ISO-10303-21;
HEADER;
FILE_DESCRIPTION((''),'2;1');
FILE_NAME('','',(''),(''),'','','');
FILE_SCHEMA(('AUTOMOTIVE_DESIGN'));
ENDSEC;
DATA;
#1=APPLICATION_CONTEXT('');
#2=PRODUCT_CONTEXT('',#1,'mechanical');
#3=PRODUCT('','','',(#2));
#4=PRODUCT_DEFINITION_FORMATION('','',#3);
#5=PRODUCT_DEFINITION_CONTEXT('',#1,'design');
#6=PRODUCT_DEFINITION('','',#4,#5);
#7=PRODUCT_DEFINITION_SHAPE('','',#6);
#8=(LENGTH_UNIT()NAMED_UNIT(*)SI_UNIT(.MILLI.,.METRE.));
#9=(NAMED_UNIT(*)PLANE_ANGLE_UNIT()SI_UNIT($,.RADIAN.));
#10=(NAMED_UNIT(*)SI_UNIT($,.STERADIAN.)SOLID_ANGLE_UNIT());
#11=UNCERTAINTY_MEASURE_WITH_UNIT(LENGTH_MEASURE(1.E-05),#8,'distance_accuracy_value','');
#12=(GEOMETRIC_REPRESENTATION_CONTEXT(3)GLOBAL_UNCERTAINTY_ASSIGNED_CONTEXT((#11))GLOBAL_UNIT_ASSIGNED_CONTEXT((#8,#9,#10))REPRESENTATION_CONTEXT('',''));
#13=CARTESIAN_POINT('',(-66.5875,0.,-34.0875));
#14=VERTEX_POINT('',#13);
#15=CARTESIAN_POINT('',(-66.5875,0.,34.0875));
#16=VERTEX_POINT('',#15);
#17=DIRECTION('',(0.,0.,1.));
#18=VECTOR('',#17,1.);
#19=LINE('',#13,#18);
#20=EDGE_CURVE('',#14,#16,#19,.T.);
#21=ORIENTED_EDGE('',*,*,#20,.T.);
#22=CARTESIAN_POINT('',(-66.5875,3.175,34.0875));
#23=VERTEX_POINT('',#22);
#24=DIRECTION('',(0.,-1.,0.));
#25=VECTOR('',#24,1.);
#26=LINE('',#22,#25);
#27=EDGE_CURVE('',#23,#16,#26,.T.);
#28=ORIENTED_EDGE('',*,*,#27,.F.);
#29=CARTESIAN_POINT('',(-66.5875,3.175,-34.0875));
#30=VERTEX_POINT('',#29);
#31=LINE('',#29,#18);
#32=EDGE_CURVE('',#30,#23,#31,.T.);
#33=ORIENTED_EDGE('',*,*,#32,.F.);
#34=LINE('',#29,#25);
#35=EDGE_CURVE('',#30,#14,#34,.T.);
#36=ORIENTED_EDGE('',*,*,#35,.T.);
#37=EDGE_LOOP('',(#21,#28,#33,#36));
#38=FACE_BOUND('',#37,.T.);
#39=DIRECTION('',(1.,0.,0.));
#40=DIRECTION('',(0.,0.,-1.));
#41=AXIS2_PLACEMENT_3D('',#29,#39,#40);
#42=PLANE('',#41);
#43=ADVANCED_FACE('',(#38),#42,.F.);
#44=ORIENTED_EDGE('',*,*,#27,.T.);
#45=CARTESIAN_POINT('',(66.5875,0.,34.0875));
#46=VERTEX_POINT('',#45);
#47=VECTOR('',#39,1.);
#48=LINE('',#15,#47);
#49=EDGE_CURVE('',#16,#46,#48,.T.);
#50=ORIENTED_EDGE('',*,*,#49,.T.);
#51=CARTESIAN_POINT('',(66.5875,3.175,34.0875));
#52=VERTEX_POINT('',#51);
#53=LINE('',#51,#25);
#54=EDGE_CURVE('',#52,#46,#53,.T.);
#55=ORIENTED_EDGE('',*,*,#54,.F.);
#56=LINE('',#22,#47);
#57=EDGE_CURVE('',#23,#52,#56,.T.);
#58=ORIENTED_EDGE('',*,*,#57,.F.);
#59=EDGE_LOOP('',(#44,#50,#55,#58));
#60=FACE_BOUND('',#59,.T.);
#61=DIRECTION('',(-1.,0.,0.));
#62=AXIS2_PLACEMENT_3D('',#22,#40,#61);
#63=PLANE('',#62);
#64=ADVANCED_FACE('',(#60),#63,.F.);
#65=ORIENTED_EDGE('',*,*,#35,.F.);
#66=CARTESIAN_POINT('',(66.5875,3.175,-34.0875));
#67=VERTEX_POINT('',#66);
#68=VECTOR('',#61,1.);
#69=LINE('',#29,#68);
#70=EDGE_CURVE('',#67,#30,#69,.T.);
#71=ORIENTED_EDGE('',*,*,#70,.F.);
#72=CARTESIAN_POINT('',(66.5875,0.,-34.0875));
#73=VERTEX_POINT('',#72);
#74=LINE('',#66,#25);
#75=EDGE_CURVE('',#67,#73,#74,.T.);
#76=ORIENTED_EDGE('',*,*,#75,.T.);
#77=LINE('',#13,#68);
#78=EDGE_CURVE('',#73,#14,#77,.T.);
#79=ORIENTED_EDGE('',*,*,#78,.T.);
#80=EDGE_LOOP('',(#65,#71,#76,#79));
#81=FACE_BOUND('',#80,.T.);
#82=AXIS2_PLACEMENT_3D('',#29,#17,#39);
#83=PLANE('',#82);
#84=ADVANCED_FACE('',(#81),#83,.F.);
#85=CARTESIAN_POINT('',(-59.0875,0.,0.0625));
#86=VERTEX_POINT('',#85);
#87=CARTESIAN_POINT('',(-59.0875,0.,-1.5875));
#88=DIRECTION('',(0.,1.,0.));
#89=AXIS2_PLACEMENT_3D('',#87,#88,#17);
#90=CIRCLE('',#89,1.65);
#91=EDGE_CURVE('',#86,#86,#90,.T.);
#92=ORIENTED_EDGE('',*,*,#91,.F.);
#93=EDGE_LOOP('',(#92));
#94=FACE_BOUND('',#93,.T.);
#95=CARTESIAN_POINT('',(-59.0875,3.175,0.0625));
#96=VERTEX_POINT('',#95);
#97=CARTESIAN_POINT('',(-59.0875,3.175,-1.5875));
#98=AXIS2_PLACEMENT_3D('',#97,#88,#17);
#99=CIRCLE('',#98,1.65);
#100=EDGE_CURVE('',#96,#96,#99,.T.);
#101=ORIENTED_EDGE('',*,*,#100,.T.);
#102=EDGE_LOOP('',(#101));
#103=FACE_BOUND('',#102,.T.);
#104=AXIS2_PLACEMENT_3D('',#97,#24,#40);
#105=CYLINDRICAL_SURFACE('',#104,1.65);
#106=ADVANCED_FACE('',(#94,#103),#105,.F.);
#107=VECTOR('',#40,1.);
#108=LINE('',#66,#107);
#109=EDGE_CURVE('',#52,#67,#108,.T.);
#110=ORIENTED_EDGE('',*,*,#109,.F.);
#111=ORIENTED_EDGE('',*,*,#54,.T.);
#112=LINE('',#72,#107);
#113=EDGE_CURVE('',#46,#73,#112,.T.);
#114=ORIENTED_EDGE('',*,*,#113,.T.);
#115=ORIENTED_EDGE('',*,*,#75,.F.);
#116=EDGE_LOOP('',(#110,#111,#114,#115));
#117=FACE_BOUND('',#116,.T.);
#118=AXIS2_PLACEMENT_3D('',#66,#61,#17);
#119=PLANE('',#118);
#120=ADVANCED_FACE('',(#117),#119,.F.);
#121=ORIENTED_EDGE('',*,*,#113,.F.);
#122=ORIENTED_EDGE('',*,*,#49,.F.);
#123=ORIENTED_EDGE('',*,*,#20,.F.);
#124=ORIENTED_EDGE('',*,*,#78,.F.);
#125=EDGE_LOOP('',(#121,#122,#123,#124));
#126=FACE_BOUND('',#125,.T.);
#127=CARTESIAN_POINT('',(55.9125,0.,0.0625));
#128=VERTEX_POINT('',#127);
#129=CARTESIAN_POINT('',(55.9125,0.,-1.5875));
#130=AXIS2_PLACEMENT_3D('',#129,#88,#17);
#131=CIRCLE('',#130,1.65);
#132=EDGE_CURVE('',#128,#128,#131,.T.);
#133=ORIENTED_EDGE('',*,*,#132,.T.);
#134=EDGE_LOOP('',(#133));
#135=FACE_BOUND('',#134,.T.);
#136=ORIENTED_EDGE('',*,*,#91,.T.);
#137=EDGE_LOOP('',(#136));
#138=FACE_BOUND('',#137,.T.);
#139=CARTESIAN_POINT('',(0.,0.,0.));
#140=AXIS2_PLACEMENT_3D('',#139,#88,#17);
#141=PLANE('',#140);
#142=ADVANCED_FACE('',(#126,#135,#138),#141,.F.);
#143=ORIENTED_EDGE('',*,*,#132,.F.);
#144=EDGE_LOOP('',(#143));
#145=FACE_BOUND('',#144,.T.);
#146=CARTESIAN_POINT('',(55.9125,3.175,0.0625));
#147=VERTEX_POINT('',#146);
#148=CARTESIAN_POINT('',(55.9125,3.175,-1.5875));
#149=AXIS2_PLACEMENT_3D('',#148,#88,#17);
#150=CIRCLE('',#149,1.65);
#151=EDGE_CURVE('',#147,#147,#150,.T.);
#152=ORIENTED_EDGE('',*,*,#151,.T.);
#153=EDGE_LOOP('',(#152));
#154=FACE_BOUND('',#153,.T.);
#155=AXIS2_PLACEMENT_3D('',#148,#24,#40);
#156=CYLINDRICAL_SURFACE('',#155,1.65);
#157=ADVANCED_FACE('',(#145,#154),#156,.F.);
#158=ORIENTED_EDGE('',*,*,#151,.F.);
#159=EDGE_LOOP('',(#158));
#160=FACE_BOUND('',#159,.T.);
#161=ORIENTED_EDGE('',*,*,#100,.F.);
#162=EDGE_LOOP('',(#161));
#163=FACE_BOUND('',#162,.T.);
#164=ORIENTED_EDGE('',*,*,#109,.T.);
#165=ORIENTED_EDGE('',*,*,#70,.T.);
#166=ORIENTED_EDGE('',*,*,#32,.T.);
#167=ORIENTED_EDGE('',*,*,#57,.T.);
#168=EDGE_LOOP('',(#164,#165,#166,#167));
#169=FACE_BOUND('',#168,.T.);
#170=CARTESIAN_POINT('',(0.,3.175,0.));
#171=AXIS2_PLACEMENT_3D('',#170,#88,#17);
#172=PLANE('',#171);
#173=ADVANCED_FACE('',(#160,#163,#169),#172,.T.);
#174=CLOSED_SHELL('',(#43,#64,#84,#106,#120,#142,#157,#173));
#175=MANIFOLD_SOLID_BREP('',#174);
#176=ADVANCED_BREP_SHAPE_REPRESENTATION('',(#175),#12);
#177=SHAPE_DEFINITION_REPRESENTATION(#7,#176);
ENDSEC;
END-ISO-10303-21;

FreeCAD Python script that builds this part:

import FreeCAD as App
import Part
import Sketcher

V = App.Vector

doc = App.newDocument("Part")
body = doc.addObject("PartDesign::Body", "Body")

sketch1 = doc.addObject("Sketcher::SketchObject", "Sketch")
body.addObject(sketch1)
sketch1.AttachmentSupport = (doc.XZ_Plane, [""])
sketch1.MapMode = "FlatFace"
sketch1.addGeometry(Part.LineSegment(V(-66.6, -34.1, 0), V(-66.6, 34.1, 0)), False)
sketch1.addGeometry(Part.LineSegment(V(-66.6, 34.1, 0), V(66.6, 34.1, 0)), False)
sketch1.addGeometry(Part.LineSegment(V(66.6, 34.1, 0), V(66.6, -34.1, 0)), False)
sketch1.addGeometry(Part.LineSegment(V(66.6, -34.1, 0), V(-66.6, -34.1, 0)), False)
sketch1.addGeometry(Part.Circle(V(-59.1, -1.6, 0), V(0, 0, 1), 1.6), False)
sketch1.addGeometry(Part.Circle(V(55.9, -1.6, 0), V(0, 0, 1), 1.6), False)
sketch1.addConstraint(Sketcher.Constraint("Coincident", 0, 2, 1, 1))
sketch1.addConstraint(Sketcher.Constraint("Coincident", 1, 2, 2, 1))
sketch1.addConstraint(Sketcher.Constraint("Coincident", 2, 2, 3, 1))
sketch1.addConstraint(Sketcher.Constraint("Coincident", 3, 2, 0, 1))
sketch1.addConstraint(Sketcher.Constraint("Vertical", 0))
sketch1.addConstraint(Sketcher.Constraint("Horizontal", 1))
sketch1.addConstraint(Sketcher.Constraint("Vertical", 2))
sketch1.addConstraint(Sketcher.Constraint("Horizontal", 3))
sketch1.addConstraint(Sketcher.Constraint("Equal", 4, 5))
sketch1.addConstraint(Sketcher.Constraint("Symmetric", 0, 2, 2, 2, -1, 1))
sketch1.addConstraint(Sketcher.Constraint("Horizontal", 4, 3, 5, 3))
sketch1.addConstraint(Sketcher.Constraint("Diameter", 4, 3.3))
sketch1.addConstraint(Sketcher.Constraint("DistanceX", 4, 3, 5, 3, 115.0))
sketch1.addConstraint(Sketcher.Constraint("DistanceX", 0, 2, 4, 3, 7.5))
sketch1.addConstraint(Sketcher.Constraint("DistanceY", 2, 2, 5, 3, 32.5))
sketch1.addConstraint(Sketcher.Constraint("DistanceX", 1, 1, 1, 2, 133.175))
sketch1.addConstraint(Sketcher.Constraint("DistanceY", 0, 1, 0, 2, 68.175))
pad1 = doc.addObject("PartDesign::Pad", "Pad")
body.addObject(pad1)
pad1.Profile = sketch1
pad1.Length = 3.175
pad1.Reversed = True

doc.recompute()
